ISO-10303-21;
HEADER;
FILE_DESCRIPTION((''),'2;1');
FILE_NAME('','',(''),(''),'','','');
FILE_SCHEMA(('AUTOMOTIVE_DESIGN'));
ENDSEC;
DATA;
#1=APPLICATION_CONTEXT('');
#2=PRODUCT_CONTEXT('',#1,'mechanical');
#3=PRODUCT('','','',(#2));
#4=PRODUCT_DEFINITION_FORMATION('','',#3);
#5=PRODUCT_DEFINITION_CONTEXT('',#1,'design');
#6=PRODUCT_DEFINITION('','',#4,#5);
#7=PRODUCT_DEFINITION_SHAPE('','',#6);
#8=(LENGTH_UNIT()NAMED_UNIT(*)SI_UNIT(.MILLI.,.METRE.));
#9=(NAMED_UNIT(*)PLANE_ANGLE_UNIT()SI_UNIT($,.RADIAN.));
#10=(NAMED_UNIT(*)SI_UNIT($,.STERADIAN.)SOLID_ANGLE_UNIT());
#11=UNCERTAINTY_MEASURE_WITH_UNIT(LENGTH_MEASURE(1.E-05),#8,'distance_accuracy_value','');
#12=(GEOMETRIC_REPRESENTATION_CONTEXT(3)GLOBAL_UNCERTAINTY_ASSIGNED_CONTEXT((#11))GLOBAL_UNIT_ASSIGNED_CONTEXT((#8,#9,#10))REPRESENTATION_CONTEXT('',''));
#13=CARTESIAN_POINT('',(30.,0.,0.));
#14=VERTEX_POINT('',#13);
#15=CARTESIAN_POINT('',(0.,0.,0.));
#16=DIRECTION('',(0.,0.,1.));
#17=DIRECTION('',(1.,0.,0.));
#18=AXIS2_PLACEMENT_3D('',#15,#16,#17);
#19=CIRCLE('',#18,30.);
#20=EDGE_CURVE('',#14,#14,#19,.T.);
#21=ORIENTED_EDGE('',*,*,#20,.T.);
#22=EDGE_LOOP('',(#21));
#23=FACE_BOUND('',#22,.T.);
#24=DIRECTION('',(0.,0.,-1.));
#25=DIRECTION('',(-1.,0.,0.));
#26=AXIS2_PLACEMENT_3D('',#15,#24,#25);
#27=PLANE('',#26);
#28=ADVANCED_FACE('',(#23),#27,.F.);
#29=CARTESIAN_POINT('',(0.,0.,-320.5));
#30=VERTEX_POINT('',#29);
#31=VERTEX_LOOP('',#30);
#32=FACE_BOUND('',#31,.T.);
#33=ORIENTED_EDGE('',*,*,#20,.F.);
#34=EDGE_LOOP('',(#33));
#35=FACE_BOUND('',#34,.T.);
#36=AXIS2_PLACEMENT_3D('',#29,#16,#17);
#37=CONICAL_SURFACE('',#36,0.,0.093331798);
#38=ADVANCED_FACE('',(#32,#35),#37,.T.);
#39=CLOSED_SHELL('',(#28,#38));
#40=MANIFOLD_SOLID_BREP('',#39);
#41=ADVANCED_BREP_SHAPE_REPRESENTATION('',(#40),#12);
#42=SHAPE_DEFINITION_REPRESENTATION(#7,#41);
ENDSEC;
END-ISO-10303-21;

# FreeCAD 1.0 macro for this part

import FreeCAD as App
import Part
import Sketcher

V = App.Vector

doc = App.newDocument("Part")
params = doc.addObject("Spreadsheet::Sheet", "Params")
for row, (alias, value) in enumerate([
    ("sketch1_width", "30 mm"),
    ("sketch1_height", "320.5 mm"),
    ("revolution_angle", "360 deg"),
], start=1):
    params.set(f"A{row}", alias)
    params.set(f"B{row}", "=" + value)
    params.setAlias(f"B{row}", alias)

body = doc.addObject("PartDesign::Body", "Body")

# Sketch on XZ plane
sketch1 = body.newObject("Sketcher::SketchObject", "Sketch")
sketch1.AttachmentSupport = (doc.getObject("XZ_Plane"), [""])
sketch1.MapMode = "FlatFace"
sketch1.addGeometry(Part.LineSegment(V(-30, 0, 0), V(0, 0, 0)), False)
sketch1.addGeometry(Part.LineSegment(V(0, 0, 0), V(0, -320, 0)), False)
sketch1.addGeometry(Part.LineSegment(V(0, -320, 0), V(-30, 0, 0)), False)
sketch1.addConstraint(Sketcher.Constraint("Coincident", 0, 2, 1, 1))
sketch1.addConstraint(Sketcher.Constraint("Coincident", 1, 2, 2, 1))
sketch1.addConstraint(Sketcher.Constraint("Coincident", 2, 2, 0, 1))
sketch1.addConstraint(Sketcher.Constraint("Horizontal", 0))
sketch1.addConstraint(Sketcher.Constraint("Vertical", 1))
sketch1.addConstraint(Sketcher.Constraint("Coincident", 0, 2, -1, 1))
sketch1.addConstraint(Sketcher.Constraint("DistanceX", 0, 1, 0, 2, 30.0))
sketch1.addConstraint(Sketcher.Constraint("DistanceY", 1, 2, 1, 1, 320.5))
sketch1.setExpression("Constraints[6]", "Params.sketch1_width")
sketch1.setExpression("Constraints[7]", "Params.sketch1_height")
revolution = body.newObject("PartDesign::Revolution", "Revolution")
revolution.Profile = sketch1
revolution.ReferenceAxis = (sketch1, ["V_Axis"])
revolution.setExpression("Angle", "Params.revolution_angle")

doc.recompute()
